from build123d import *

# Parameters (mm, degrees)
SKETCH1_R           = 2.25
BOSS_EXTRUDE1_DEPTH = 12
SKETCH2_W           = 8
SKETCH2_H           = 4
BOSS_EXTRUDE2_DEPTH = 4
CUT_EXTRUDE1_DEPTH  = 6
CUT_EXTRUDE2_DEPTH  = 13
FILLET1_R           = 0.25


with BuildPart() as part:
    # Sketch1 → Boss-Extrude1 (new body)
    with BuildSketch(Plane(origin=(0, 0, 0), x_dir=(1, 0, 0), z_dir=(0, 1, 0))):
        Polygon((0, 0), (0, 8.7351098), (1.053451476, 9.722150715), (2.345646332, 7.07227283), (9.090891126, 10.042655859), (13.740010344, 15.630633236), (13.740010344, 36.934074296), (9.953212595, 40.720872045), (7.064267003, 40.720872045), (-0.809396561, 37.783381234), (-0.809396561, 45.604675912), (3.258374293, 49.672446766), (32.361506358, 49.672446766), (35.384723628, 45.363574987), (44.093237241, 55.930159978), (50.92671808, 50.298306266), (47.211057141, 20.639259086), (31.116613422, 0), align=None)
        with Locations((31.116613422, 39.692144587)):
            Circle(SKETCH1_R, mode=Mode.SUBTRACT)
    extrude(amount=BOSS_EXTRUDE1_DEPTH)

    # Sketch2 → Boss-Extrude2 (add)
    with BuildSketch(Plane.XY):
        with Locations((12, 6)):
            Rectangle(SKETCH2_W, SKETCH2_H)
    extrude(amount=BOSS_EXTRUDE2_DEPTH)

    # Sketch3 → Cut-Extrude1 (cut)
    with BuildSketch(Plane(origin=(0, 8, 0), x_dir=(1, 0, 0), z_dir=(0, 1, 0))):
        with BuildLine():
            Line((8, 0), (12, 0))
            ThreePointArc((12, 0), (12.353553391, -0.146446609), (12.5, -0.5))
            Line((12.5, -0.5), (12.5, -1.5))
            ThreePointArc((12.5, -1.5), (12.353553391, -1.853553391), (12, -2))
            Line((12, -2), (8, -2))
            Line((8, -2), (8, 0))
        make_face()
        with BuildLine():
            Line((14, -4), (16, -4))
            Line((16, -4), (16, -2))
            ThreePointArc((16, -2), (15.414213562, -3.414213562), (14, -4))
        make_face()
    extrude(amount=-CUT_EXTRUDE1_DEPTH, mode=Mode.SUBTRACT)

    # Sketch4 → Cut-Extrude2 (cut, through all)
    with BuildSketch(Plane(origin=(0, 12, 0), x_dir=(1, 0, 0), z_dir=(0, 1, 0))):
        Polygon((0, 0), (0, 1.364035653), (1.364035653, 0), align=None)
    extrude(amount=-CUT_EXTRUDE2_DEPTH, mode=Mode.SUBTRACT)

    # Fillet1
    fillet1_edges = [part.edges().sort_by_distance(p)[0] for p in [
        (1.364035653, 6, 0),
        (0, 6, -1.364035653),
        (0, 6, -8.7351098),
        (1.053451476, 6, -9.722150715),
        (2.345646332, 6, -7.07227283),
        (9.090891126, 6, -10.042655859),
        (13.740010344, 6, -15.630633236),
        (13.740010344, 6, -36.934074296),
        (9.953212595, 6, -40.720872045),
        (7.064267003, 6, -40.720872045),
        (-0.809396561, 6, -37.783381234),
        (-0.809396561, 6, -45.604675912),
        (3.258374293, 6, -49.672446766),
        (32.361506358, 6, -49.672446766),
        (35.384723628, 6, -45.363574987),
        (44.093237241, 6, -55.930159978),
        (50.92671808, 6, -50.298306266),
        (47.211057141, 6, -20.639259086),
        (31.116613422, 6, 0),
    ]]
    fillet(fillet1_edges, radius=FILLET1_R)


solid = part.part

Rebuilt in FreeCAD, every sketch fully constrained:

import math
import FreeCAD as App
import Part
import Sketcher

V = App.Vector
Q = App.Units.Quantity


def edges_at(feature, points):
    """Names of the edges that pass closest to the given points."""
    edges = feature.Shape.Edges
    near = lambda p: min(range(len(edges)), key=lambda i: edges[i].distToShape(Part.Vertex(*p))[0])
    return sorted({f"Edge{near(p) + 1}" for p in points})

doc = App.newDocument("Part")
body = doc.addObject("PartDesign::Body", "Body")

# Sketch on XZ plane
sketch1 = doc.addObject("Sketcher::SketchObject", "Sketch")
body.addObject(sketch1)
sketch1.AttachmentSupport = (doc.XZ_Plane, [""])
sketch1.MapMode = "FlatFace"
sketch1.addGeometry([
    Part.LineSegment(V(0, -8.73511, 0), V(0, 0, 0)),  # 0
    Part.LineSegment(V(0, 0, 0), V(31.116613, 0, 0)),  # 1
    Part.LineSegment(V(31.116613, 0, 0), V(47.211057, -20.639259, 0)),  # 2
    Part.LineSegment(V(47.211057, -20.639259, 0), V(50.926718, -50.298306, 0)),  # 3
    Part.LineSegment(V(50.926718, -50.298306, 0), V(44.093237, -55.93016, 0)),  # 4
    Part.LineSegment(V(44.093237, -55.93016, 0), V(35.384724, -45.363575, 0)),  # 5
    Part.LineSegment(V(35.384724, -45.363575, 0), V(32.361506, -49.672447, 0)),  # 6
    Part.LineSegment(V(32.361506, -49.672447, 0), V(3.258374, -49.672447, 0)),  # 7
    Part.LineSegment(V(3.258374, -49.672447, 0), V(-0.809397, -45.604676, 0)),  # 8
    Part.LineSegment(V(-0.809397, -45.604676, 0), V(-0.809397, -37.783381, 0)),  # 9
    Part.LineSegment(V(-0.809397, -37.783381, 0), V(7.064267, -40.720872, 0)),  # 10
    Part.LineSegment(V(7.064267, -40.720872, 0), V(9.953213, -40.720872, 0)),  # 11
    Part.LineSegment(V(9.953213, -40.720872, 0), V(13.74001, -36.934074, 0)),  # 12
    Part.LineSegment(V(13.74001, -36.934074, 0), V(13.74001, -15.630633, 0)),  # 13
    Part.LineSegment(V(13.74001, -15.630633, 0), V(9.090891, -10.042656, 0)),  # 14
    Part.LineSegment(V(9.090891, -10.042656, 0), V(2.345646, -7.072273, 0)),  # 15
    Part.LineSegment(V(2.345646, -7.072273, 0), V(1.053451, -9.722151, 0)),  # 16
    Part.LineSegment(V(1.053451, -9.722151, 0), V(0, -8.73511, 0)),  # 17
    Part.Circle(V(31.116613, -39.692145, 0), V(0, 0, 1), 2.25),  # 18
], False)
sketch1.addConstraint([
    Sketcher.Constraint("Coincident", 0, 2, 1, 1),
    Sketcher.Constraint("Coincident", 1, 2, 2, 1),
    Sketcher.Constraint("Coincident", 2, 2, 3, 1),
    Sketcher.Constraint("Coincident", 3, 2, 4, 1),
    Sketcher.Constraint("Coincident", 4, 2, 5, 1),
    Sketcher.Constraint("Coincident", 5, 2, 6, 1),
    Sketcher.Constraint("Coincident", 6, 2, 7, 1),
    Sketcher.Constraint("Coincident", 7, 2, 8, 1),
    Sketcher.Constraint("Coincident", 8, 2, 9, 1),
    Sketcher.Constraint("Coincident", 9, 2, 10, 1),
    Sketcher.Constraint("Coincident", 10, 2, 11, 1),
    Sketcher.Constraint("Coincident", 11, 2, 12, 1),
    Sketcher.Constraint("Coincident", 12, 2, 13, 1),
    Sketcher.Constraint("Coincident", 13, 2, 14, 1),
    Sketcher.Constraint("Coincident", 14, 2, 15, 1),
    Sketcher.Constraint("Coincident", 15, 2, 16, 1),
    Sketcher.Constraint("Coincident", 16, 2, 17, 1),
    Sketcher.Constraint("Coincident", 17, 2, 0, 1),
    Sketcher.Constraint("Vertical", 0),
    Sketcher.Constraint("Horizontal", 1),
    Sketcher.Constraint("Horizontal", 7),
    Sketcher.Constraint("Vertical", 9),
    Sketcher.Constraint("Horizontal", 11),
    Sketcher.Constraint("Vertical", 13),
    Sketcher.Constraint("Coincident", 0, 2, -1, 1),
    Sketcher.Constraint("Perpendicular", 4, 5),
    Sketcher.Constraint("Perpendicular", 8, 12),
    Sketcher.Constraint("Vertical", 18, 3, 1, 2),
    Sketcher.Constraint("Diameter", 18, Q("4.5 mm")),
    Sketcher.Constraint("Angle", 8, Q("135 deg")),
    Sketcher.Constraint("Angle", 14, Q("129.759984 deg")),
    Sketcher.Constraint("Distance", 2, Q("26.172698 mm")),
    Sketcher.Constraint("Distance", 14, Q("7.269099 mm")),
    Sketcher.Constraint("DistanceY", 0, 1, 0, 2, Q("8.73511 mm")),
    Sketcher.Constraint("DistanceY", 13, 1, 13, 2, Q("21.303441 mm")),
    Sketcher.Constraint("DistanceY", 4, 2, 2, 2, Q("35.290901 mm")),
    Sketcher.Constraint("DistanceY", 8, 2, 5, 2, Q("0.241101 mm")),
    Sketcher.Constraint("DistanceX", 11, 2, 18, 3, Q("21.163401 mm")),
    Sketcher.Constraint("DistanceY", 8, 2, 12, 2, Q("8.670602 mm")),
    Sketcher.Constraint("Distance", 3, Q("29.890889 mm")),
    Sketcher.Constraint("Distance", 4, Q("8.855181 mm")),
    Sketcher.Constraint("Distance", 6, Q("5.26367 mm")),
    Sketcher.Constraint("Distance", 12, Q("5.355341 mm")),
    Sketcher.Constraint("Distance", 17, Q("1.44361 mm")),
    Sketcher.Constraint("DistanceX", 1, 1, 1, 2, Q("31.116613 mm")),
    Sketcher.Constraint("DistanceX", 7, 2, 7, 1, Q("29.103132 mm")),
    Sketcher.Constraint("DistanceX", 11, 1, 11, 2, Q("2.888946 mm")),
    Sketcher.Constraint("DistanceY", 9, 1, 9, 2, Q("7.821295 mm")),
    Sketcher.Constraint("DistanceY", 2, 2, -1, 1, Q("20.639259 mm")),
    Sketcher.Constraint("DistanceX", -1, 1, 3, 2, Q("50.926718 mm")),
    Sketcher.Constraint("DistanceY", 9, 2, -1, 1, Q("37.783381 mm")),
    Sketcher.Constraint("DistanceX", -1, 1, 16, 2, Q("1.053451 mm")),
    Sketcher.Constraint("DistanceY", 3, 2, 18, 3, Q("10.606162 mm")),
    Sketcher.Constraint("DistanceY", 6, 2, 5, 2, Q("4.308872 mm")),
    Sketcher.Constraint("DistanceY", 13, 2, 15, 2, Q("8.55836 mm")),
    Sketcher.Constraint("Distance", 15, Q("7.370312 mm")),
])
pad1 = doc.addObject("PartDesign::Pad", "Pad")
body.addObject(pad1)
pad1.Profile = sketch1
pad1.Length = 12
pad1.Reversed = True

# Sketch on XY plane
sketch2 = doc.addObject("Sketcher::SketchObject", "Sketch001")
body.addObject(sketch2)
sketch2.AttachmentSupport = (doc.XY_Plane, [""])
sketch2.MapMode = "FlatFace"
sketch2.addGeometry([
    Part.LineSegment(V(8, 8, 0), V(8, 4, 0)),
    Part.LineSegment(V(8, 4, 0), V(16, 4, 0)),
    Part.LineSegment(V(16, 4, 0), V(16, 8, 0)),
    Part.LineSegment(V(16, 8, 0), V(8, 8, 0)),
], False)
sketch2.addConstraint([
    Sketcher.Constraint("Coincident", 0, 2, 1, 1),
    Sketcher.Constraint("Coincident", 1, 2, 2, 1),
    Sketcher.Constraint("Coincident", 2, 2, 3, 1),
    Sketcher.Constraint("Coincident", 3, 2, 0, 1),
    Sketcher.Constraint("Vertical", 0),
    Sketcher.Constraint("Horizontal", 1),
    Sketcher.Constraint("Vertical", 2),
    Sketcher.Constraint("Horizontal", 3),
    Sketcher.Constraint("DistanceX", 1, 1, 1, 2, Q("8 mm")),
    Sketcher.Constraint("DistanceY", 0, 2, 0, 1, Q("4 mm")),
    Sketcher.Constraint("DistanceX", -1, 1, 0, 2, Q("8 mm")),
    Sketcher.Constraint("DistanceY", -1, 1, 0, 2, Q("4 mm")),
])
pad2 = doc.addObject("PartDesign::Pad", "Pad001")
body.addObject(pad2)
pad2.Profile = sketch2
pad2.Length = 4

# Sketch on XZ plane
sketch3 = doc.addObject("Sketcher::SketchObject", "Sketch002")
body.addObject(sketch3)
sketch3.AttachmentSupport = (doc.XZ_Plane, [""])
sketch3.MapMode = "FlatFace"
sketch3.AttachmentOffset = App.Placement(V(0, 0, -8), App.Rotation())
sketch3.addGeometry([
    Part.LineSegment(V(12, 0, 0), V(8, 0, 0)),  # 0
    Part.LineSegment(V(8, 0, 0), V(8, 2, 0)),  # 1
    Part.LineSegment(V(8, 2, 0), V(12, 2, 0)),  # 2
    Part.ArcOfCircle(Part.Circle(V(12, 1.5, 0), V(0, 0, 1), 0.5), math.radians(0), math.radians(90)),  # 3
    Part.LineSegment(V(12.5, 1.5, 0), V(12.5, 0.5, 0)),  # 4
    Part.ArcOfCircle(Part.Circle(V(12, 0.5, 0), V(0, 0, 1), 0.5), math.radians(-90), math.radians(0)),  # 5
    Part.LineSegment(V(14, 4, 0), V(16, 4, 0)),  # 6
    Part.LineSegment(V(16, 4, 0), V(16, 2, 0)),  # 7
    Part.ArcOfCircle(Part.Circle(V(14, 2, 0), V(0, 0, 1), 2), math.radians(0), math.radians(90)),  # 8
], False)
sketch3.addConstraint([
    Sketcher.Constraint("Coincident", 0, 2, 1, 1),
    Sketcher.Constraint("Coincident", 1, 2, 2, 1),
    Sketcher.Constraint("Tangent", 2, 2, 3, 2),
    Sketcher.Constraint("Tangent", 3, 1, 4, 1),
    Sketcher.Constraint("Tangent", 4, 2, 5, 2),
    Sketcher.Constraint("Tangent", 5, 1, 0, 1),
    Sketcher.Constraint("Coincident", 6, 2, 7, 1),
    Sketcher.Constraint("Tangent", 7, 2, 8, 1),
    Sketcher.Constraint("Tangent", 8, 2, 6, 1),
    Sketcher.Constraint("Horizontal", 0),
    Sketcher.Constraint("Vertical", 1),
    Sketcher.Constraint("Horizontal", 2),
    Sketcher.Constraint("Vertical", 4),
    Sketcher.Constraint("Horizontal", 6),
    Sketcher.Constraint("Vertical", 7),
    Sketcher.Constraint("Equal", 3, 5),
    Sketcher.Constraint("PointOnObject", 0, 2, -1),
    Sketcher.Constraint("Horizontal", 8, 3, 1, 2),
    Sketcher.Constraint("Equal", 6, 1),
    Sketcher.Constraint("Radius", 8, Q("2 mm")),
    Sketcher.Constraint("Radius", 3, Q("0.5 mm")),
    Sketcher.Constraint("DistanceX", 0, 2, 0, 1, Q("4 mm")),
    Sketcher.Constraint("DistanceX", -1, 1, 3, 3, Q("12 mm")),
    Sketcher.Constraint("DistanceX", -1, 1, 8, 3, Q("14 mm")),
])
pocket1 = doc.addObject("PartDesign::Pocket", "Pocket")
body.addObject(pocket1)
pocket1.Profile = sketch3
pocket1.Length = 6
pocket1.Reversed = True

# Sketch on XZ plane
sketch4 = doc.addObject("Sketcher::SketchObject", "Sketch003")
body.addObject(sketch4)
sketch4.AttachmentSupport = (doc.XZ_Plane, [""])
sketch4.MapMode = "FlatFace"
sketch4.AttachmentOffset = App.Placement(V(0, 0, -12), App.Rotation())
sketch4.addGeometry([
    Part.LineSegment(V(0, -1.364036, 0), V(0, 0, 0)),
    Part.LineSegment(V(0, 0, 0), V(1.364036, 0, 0)),
    Part.LineSegment(V(1.364036, 0, 0), V(0, -1.364036, 0)),
], False)
sketch4.addConstraint([
    Sketcher.Constraint("Coincident", 0, 2, 1, 1),
    Sketcher.Constraint("Coincident", 1, 2, 2, 1),
    Sketcher.Constraint("Coincident", 2, 2, 0, 1),
    Sketcher.Constraint("Vertical", 0),
    Sketcher.Constraint("Horizontal", 1),
    Sketcher.Constraint("Coincident", 0, 2, -1, 1),
    Sketcher.Constraint("Equal", 1, 0),
    Sketcher.Constraint("DistanceX", 1, 1, 1, 2, Q("1.364036 mm")),
])
pocket2 = doc.addObject("PartDesign::Pocket", "Pocket001")
body.addObject(pocket2)
pocket2.Profile = sketch4
pocket2.Type = "ThroughAll"
pocket2.Reversed = True
doc.recompute()

fillet = doc.addObject("PartDesign::Fillet", "Fillet")
body.addObject(fillet)
fillet.Base = (pocket2, edges_at(pocket2, [
    (1.364, 6, 0),
    (0, 6, -1.364),
    (0, 6, -8.735),
    (1.053, 6, -9.722),
    (2.346, 6, -7.072),
    (9.091, 6, -10.043),
    (13.74, 6, -15.631),
    (13.74, 6, -36.934),
    (9.953, 6, -40.721),
    (7.064, 6, -40.721),
    (-0.809, 6, -37.783),
    (-0.809, 6, -45.605),
    (3.258, 6, -49.672),
    (32.362, 6, -49.672),
    (35.385, 6, -45.364),
    (44.093, 6, -55.93),
    (50.927, 6, -50.298),
    (47.211, 6, -20.639),
    (31.117, 6, 0),
]))
fillet.Radius = 0.25

doc.recompute()
